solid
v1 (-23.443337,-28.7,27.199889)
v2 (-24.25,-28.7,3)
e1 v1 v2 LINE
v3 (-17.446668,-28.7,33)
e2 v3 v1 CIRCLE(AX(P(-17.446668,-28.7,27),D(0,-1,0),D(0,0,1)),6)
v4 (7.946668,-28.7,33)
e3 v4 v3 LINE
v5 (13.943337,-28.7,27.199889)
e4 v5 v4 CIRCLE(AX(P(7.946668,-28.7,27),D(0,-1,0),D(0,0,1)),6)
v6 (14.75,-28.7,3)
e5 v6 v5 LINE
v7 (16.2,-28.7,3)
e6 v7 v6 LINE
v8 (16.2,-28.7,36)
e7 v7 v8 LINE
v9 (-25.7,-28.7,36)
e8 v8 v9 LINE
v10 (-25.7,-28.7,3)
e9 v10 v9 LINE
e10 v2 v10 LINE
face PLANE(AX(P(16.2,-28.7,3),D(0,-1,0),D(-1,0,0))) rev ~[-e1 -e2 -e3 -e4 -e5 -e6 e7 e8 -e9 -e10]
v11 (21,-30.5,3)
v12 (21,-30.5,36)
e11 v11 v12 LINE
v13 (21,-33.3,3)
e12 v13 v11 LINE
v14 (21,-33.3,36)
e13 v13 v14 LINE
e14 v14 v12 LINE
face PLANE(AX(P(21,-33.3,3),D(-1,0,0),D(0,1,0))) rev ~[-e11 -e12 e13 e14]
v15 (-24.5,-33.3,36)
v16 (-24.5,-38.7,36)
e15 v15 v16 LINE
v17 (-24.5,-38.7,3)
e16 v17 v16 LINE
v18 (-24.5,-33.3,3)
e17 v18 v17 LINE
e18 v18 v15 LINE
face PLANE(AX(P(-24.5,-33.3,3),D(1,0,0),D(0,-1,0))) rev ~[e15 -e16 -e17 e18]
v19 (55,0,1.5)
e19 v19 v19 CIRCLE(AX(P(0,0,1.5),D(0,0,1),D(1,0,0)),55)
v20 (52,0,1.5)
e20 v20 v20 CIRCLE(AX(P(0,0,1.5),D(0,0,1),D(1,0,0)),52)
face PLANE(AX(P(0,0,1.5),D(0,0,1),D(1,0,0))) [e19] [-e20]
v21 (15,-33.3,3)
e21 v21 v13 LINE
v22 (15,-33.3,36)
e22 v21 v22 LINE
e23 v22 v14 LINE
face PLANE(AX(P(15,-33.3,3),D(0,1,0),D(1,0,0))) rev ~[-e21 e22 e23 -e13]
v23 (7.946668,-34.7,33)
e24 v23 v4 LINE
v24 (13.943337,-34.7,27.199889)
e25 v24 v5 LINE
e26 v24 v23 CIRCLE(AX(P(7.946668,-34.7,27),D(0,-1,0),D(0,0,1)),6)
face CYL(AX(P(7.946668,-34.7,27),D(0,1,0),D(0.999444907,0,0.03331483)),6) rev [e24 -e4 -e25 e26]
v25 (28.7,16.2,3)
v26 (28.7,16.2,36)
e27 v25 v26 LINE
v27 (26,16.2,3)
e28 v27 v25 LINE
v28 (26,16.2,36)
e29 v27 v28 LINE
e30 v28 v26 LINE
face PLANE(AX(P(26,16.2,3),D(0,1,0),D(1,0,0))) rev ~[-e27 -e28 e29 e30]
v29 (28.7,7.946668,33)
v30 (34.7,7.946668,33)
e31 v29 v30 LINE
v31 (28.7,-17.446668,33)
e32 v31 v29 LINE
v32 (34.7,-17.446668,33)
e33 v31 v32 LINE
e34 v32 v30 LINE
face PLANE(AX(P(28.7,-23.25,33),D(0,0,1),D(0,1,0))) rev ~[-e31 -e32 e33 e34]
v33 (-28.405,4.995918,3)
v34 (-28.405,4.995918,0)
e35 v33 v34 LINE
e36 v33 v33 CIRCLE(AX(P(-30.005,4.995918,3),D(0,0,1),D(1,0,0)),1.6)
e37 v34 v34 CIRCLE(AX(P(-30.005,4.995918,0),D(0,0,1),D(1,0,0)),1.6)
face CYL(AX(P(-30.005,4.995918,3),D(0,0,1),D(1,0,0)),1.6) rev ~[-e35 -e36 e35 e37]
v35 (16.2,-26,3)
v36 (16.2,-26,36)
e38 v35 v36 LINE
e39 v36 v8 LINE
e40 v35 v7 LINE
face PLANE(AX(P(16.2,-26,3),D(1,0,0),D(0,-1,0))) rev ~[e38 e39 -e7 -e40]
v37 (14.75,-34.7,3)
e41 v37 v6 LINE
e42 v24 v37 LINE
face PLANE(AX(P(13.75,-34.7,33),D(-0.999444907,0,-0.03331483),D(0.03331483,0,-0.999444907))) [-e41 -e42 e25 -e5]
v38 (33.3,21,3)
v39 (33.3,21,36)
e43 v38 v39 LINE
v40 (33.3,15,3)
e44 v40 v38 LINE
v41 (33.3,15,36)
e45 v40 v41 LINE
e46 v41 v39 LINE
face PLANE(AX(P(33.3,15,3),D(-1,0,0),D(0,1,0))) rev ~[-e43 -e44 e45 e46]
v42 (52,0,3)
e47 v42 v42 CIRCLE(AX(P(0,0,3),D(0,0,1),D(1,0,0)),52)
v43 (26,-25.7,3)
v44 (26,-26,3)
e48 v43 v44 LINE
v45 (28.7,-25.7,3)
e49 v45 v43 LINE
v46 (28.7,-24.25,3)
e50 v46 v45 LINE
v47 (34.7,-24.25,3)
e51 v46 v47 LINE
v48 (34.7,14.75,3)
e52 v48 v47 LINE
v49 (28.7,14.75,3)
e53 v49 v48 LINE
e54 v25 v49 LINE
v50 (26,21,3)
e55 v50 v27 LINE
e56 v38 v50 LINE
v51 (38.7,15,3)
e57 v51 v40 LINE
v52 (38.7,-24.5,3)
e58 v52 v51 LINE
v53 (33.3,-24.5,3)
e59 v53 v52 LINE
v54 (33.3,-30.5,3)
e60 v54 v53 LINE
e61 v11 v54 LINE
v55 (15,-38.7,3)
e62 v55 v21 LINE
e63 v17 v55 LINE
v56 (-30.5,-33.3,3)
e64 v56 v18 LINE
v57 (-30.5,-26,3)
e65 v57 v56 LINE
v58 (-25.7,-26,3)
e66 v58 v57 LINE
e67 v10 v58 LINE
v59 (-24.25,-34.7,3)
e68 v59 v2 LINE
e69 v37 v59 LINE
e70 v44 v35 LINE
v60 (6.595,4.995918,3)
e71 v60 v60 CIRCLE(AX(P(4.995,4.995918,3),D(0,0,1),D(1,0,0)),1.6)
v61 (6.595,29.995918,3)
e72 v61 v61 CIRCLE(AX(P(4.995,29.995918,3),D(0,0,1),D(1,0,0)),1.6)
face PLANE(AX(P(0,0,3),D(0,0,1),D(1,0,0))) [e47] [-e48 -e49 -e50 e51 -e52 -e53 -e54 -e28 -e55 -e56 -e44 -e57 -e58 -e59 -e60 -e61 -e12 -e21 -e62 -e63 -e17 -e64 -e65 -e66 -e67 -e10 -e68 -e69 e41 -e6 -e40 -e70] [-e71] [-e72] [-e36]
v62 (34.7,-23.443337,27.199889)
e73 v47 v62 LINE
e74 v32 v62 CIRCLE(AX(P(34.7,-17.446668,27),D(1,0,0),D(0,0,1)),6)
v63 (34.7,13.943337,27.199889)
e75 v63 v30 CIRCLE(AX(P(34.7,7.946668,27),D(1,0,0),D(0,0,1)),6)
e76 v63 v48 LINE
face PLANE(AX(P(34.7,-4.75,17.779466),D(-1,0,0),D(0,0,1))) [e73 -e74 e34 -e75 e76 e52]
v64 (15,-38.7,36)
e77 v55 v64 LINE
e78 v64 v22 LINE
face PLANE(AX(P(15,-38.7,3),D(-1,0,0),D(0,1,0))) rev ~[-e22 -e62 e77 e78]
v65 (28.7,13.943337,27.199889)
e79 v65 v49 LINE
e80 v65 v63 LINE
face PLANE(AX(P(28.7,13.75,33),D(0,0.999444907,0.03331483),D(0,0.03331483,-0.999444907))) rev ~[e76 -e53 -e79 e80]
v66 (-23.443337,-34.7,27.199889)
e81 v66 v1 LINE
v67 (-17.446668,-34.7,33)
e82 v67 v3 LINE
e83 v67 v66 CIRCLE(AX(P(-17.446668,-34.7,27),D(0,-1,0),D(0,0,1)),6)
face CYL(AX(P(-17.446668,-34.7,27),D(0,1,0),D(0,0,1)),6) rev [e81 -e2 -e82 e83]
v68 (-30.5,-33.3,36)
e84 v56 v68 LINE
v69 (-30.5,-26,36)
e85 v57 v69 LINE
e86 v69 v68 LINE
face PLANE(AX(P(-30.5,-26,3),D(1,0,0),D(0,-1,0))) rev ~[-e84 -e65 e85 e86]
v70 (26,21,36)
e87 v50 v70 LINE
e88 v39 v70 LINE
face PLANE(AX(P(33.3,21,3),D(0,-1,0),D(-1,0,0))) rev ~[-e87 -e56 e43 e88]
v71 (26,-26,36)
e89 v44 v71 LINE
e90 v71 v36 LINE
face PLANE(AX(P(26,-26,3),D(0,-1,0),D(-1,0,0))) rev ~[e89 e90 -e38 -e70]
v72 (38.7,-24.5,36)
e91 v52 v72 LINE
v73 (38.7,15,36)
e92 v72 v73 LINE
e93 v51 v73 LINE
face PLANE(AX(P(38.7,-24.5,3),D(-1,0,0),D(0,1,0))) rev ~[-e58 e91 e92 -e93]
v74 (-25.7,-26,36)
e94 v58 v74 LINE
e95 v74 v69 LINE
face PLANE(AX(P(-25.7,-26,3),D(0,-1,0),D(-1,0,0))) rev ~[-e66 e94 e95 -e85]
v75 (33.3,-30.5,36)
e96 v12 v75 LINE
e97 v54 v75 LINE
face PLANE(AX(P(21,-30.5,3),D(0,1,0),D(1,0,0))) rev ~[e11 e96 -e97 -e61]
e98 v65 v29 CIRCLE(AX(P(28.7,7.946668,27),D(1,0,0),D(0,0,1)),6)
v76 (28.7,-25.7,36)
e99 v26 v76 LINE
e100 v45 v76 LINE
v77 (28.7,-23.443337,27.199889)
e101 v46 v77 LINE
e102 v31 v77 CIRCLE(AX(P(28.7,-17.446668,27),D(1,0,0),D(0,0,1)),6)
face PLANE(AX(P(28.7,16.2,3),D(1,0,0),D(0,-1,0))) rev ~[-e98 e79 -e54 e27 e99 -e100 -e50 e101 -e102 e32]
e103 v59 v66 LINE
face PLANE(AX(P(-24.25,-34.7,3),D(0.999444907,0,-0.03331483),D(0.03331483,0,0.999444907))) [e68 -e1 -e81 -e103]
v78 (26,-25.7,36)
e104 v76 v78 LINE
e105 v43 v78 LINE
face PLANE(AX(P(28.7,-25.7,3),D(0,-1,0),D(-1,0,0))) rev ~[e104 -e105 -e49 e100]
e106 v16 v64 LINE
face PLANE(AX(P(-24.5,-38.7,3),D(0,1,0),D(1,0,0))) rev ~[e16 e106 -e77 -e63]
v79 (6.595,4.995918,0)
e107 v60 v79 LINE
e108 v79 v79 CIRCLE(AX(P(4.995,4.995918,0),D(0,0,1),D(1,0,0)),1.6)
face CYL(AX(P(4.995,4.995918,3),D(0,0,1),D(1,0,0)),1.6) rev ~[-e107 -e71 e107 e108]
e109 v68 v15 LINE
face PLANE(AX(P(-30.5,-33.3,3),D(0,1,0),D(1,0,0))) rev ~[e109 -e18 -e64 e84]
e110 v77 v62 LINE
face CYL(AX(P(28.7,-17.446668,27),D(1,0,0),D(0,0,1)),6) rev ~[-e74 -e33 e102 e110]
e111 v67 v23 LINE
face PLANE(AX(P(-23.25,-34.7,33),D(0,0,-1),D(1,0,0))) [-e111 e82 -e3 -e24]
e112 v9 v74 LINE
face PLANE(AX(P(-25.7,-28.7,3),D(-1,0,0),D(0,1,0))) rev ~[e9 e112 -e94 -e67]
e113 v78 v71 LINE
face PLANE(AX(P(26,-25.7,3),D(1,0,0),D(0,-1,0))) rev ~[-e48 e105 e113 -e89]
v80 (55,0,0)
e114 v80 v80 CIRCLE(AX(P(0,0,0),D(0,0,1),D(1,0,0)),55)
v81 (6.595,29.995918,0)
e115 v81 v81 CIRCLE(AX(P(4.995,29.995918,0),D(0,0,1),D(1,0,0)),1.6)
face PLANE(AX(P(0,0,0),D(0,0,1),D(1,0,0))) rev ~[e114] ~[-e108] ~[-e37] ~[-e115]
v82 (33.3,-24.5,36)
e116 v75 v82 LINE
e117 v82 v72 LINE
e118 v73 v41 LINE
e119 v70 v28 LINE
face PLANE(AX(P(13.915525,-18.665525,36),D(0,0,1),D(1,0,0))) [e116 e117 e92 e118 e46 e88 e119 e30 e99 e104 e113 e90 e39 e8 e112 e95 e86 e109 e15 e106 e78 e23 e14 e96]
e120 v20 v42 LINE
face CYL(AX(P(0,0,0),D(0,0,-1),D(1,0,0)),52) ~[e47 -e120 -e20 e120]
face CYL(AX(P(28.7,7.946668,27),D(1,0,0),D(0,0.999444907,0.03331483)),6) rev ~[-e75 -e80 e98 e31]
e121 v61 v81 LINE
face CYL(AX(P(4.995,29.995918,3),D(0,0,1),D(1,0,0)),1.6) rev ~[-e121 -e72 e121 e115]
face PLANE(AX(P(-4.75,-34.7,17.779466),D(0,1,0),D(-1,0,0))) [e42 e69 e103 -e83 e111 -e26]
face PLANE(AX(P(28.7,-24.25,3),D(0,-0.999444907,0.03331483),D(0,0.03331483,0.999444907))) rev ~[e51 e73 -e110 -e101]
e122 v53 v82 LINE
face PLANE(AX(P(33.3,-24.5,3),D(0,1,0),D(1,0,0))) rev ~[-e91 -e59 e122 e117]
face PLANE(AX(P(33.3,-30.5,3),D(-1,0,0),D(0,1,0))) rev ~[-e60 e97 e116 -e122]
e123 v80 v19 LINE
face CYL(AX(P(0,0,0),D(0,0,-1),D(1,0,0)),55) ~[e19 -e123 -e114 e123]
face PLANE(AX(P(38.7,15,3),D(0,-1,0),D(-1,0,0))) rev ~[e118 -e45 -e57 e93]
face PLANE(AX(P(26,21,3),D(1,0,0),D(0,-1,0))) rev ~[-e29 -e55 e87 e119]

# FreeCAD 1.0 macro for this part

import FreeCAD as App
import Part
import Sketcher

V = App.Vector
Q = App.Units.Quantity


def edges_at(feature, points):
    """Names of the edges that pass closest to the given points."""
    edges = feature.Shape.Edges
    near = lambda p: min(range(len(edges)), key=lambda i: edges[i].distToShape(Part.Vertex(*p))[0])
    return sorted({f"Edge{near(p) + 1}" for p in points})


def add_polygon(sketch, points):
    """Adds a closed chain of lines whose ends are joined by coincident constraints."""
    first, n = sketch.GeometryCount, len(points)
    for a, b in zip(points, points[1:] + points[:1]):
        sketch.addGeometry(Part.LineSegment(App.Vector(*a, 0), App.Vector(*b, 0)), False)
    for i in range(n):
        sketch.addConstraint(Sketcher.Constraint("Coincident", first + i, 2, first + (i + 1) % n, 1))

doc = App.newDocument("Part")
body = doc.addObject("PartDesign::Body", "Body")

sketch1 = doc.addObject("Sketcher::SketchObject", "Sketch")
body.addObject(sketch1)
sketch1.AttachmentSupport = (doc.XY_Plane, [""])
sketch1.MapMode = "FlatFace"
sketch1.addGeometry(Part.Circle(V(0, 0, 0), V(0, 0, 1), 52), False)
sketch1.addConstraint([
    Sketcher.Constraint("Coincident", 0, 3, -1, 1),
    Sketcher.Constraint("Diameter", 0, Q("104 mm")),
])
pad1 = doc.addObject("PartDesign::Pad", "Pad")
body.addObject(pad1)
pad1.Profile = sketch1
pad1.Length = 3

sketch2 = doc.addObject("Sketcher::SketchObject", "Sketch001")
body.addObject(sketch2)
sketch2.AttachmentSupport = (doc.XY_Plane, [""])
sketch2.MapMode = "FlatFace"
sketch2.addGeometry([
    Part.Circle(V(0, 0, 0), V(0, 0, 1), 55),
    Part.Circle(V(0, 0, 0), V(0, 0, 1), 52),
], False)
sketch2.addConstraint([
    Sketcher.Constraint("Coincident", 0, 3, -1, 1),
    Sketcher.Constraint("Coincident", 1, 3, -1, 1),
    Sketcher.Constraint("Diameter", 0, Q("110 mm")),
    Sketcher.Constraint("Diameter", 1, Q("104 mm")),
])
pad2 = doc.addObject("PartDesign::Pad", "Pad001")
body.addObject(pad2)
pad2.Profile = sketch2
pad2.Length = 1.5

sketch3 = doc.addObject("Sketcher::SketchObject", "Sketch002")
body.addObject(sketch3)
sketch3.AttachmentSupport = (doc.XY_Plane, [""])
sketch3.MapMode = "FlatFace"
sketch3.AttachmentOffset = App.Placement(V(0, 0, 3), App.Rotation())
sketch3.addGeometry(Part.Circle(V(5, 5, 0), V(0, 0, 1), 1.6), False)
sketch3.addConstraint([
    Sketcher.Constraint("Diameter", 0, Q("3.2 mm")),
    Sketcher.Constraint("DistanceX", -1, 1, 0, 3, Q("4.995 mm")),
    Sketcher.Constraint("DistanceY", -1, 1, 0, 3, Q("4.995918 mm")),
])
pocket1 = doc.addObject("PartDesign::Pocket", "Pocket")
body.addObject(pocket1)
pocket1.Profile = sketch3
pocket1.Type = "UpToFirst"

sketch4 = doc.addObject("Sketcher::SketchObject", "Sketch003")
body.addObject(sketch4)
sketch4.AttachmentSupport = (doc.XY_Plane, [""])
sketch4.MapMode = "FlatFace"
sketch4.AttachmentOffset = App.Placement(V(0, 0, 3), App.Rotation())
sketch4.addGeometry(Part.Circle(V(5, 30, 0), V(0, 0, 1), 1.6), False)
sketch4.addConstraint([
    Sketcher.Constraint("Diameter", 0, Q("3.2 mm")),
    Sketcher.Constraint("DistanceX", -1, 1, 0, 3, Q("4.995 mm")),
    Sketcher.Constraint("DistanceY", -1, 1, 0, 3, Q("29.995918 mm")),
])
pocket2 = doc.addObject("PartDesign::Pocket", "Pocket001")
body.addObject(pocket2)
pocket2.Profile = sketch4
pocket2.Type = "UpToFirst"

sketch5 = doc.addObject("Sketcher::SketchObject", "Sketch004")
body.addObject(sketch5)
sketch5.AttachmentSupport = (doc.XY_Plane, [""])
sketch5.MapMode = "FlatFace"
sketch5.AttachmentOffset = App.Placement(V(0, 0, 3), App.Rotation())
sketch5.addGeometry(Part.Circle(V(-30, 5, 0), V(0, 0, 1), 1.6), False)
sketch5.addConstraint([
    Sketcher.Constraint("Diameter", 0, Q("3.2 mm")),
    Sketcher.Constraint("DistanceX", 0, 3, -1, 1, Q("30.005 mm")),
    Sketcher.Constraint("DistanceY", -1, 1, 0, 3, Q("4.995918 mm")),
])
pocket3 = doc.addObject("PartDesign::Pocket", "Pocket002")
body.addObject(pocket3)
pocket3.Profile = sketch5
pocket3.Type = "UpToFirst"

sketch6 = doc.addObject("Sketcher::SketchObject", "Sketch005")
body.addObject(sketch6)
sketch6.AttachmentSupport = (doc.XY_Plane, [""])
sketch6.MapMode = "FlatFace"
sketch6.AttachmentOffset = App.Placement(V(0, 0, 3), App.Rotation())
add_polygon(sketch6, [(26, 21), (26, 16.2), (28.7, 16.2), (28.7, -25.7), (26, -25.7), (26, -26), (16.2, -26), (16.2, -28.7), (-25.7, -28.7), (-25.7, -26), (-30.5, -26), (-30.5, -33.3), (-24.5, -33.3), (-24.5, -38.7), (15, -38.7), (15, -33.3), (21, -33.3), (21, -30.5), (33.3, -30.5), (33.3, -24.5), (38.7, -24.5), (38.7, 15), (33.3, 15), (33.3, 21)])
sketch6.addConstraint([
    Sketcher.Constraint("Vertical", 0),
    Sketcher.Constraint("Horizontal", 1),
    Sketcher.Constraint("Vertical", 2),
    Sketcher.Constraint("Horizontal", 3),
    Sketcher.Constraint("Vertical", 4),
    Sketcher.Constraint("Horizontal", 5),
    Sketcher.Constraint("Vertical", 6),
    Sketcher.Constraint("Horizontal", 7),
    Sketcher.Constraint("Vertical", 8),
    Sketcher.Constraint("Horizontal", 9),
    Sketcher.Constraint("Vertical", 10),
    Sketcher.Constraint("Horizontal", 11),
    Sketcher.Constraint("Vertical", 12),
    Sketcher.Constraint("Horizontal", 13),
    Sketcher.Constraint("Vertical", 14),
    Sketcher.Constraint("Horizontal", 15),
    Sketcher.Constraint("Vertical", 16),
    Sketcher.Constraint("Horizontal", 17),
    Sketcher.Constraint("Vertical", 18),
    Sketcher.Constraint("Horizontal", 19),
    Sketcher.Constraint("Vertical", 20),
    Sketcher.Constraint("Horizontal", 21),
    Sketcher.Constraint("Vertical", 22),
    Sketcher.Constraint("Horizontal", 23),
    Sketcher.Constraint("Horizontal", 5, 2, 8, 2),
    Sketcher.Constraint("Horizontal", 11, 2, 14, 2),
    Sketcher.Constraint("Vertical", 0, 2, 3, 2),
    Sketcher.Constraint("Vertical", 18, 2, 21, 2),
    Sketcher.Constraint("Equal", 11, 15),
    Sketcher.Constraint("Equal", 9, 0),
    Sketcher.Constraint("Equal", 7, 2),
    Sketcher.Constraint("Equal", 3, 6),
    Sketcher.Constraint("Equal", 23, 10),
    Sketcher.Constraint("Equal", 21, 12),
    Sketcher.Constraint("Equal", 15, 18),
    Sketcher.Constraint("Equal", 13, 20),
    Sketcher.Constraint("Equal", 18, 22),
    Sketcher.Constraint("DistanceX", 11, 1, 11, 2, Q("6 mm")),
    Sketcher.Constraint("DistanceX", 1, 1, 1, 2, Q("2.7 mm")),
    Sketcher.Constraint("DistanceX", 5, 2, 5, 1, Q("9.8 mm")),
    Sketcher.Constraint("DistanceX", 7, 2, 7, 1, Q("41.9 mm")),
    Sketcher.Constraint("DistanceX", 9, 2, 9, 1, Q("4.8 mm")),
    Sketcher.Constraint("DistanceX", 13, 1, 13, 2, Q("39.5 mm")),
    Sketcher.Constraint("DistanceX", 17, 1, 17, 2, Q("12.3 mm")),
    Sketcher.Constraint("DistanceX", 19, 1, 19, 2, Q("5.4 mm")),
    Sketcher.Constraint("DistanceY", 4, 2, 4, 1, Q("0.3 mm")),
    Sketcher.Constraint("DistanceX", -1, 1, 0, 2, Q("26 mm")),
    Sketcher.Constraint("DistanceY", 4, 2, -1, 1, Q("26 mm")),
])
pad3 = doc.addObject("PartDesign::Pad", "Pad002")
body.addObject(pad3)
pad3.Profile = sketch6
pad3.Length = 33

sketch7 = doc.addObject("Sketcher::SketchObject", "Sketch006")
body.addObject(sketch7)
sketch7.AttachmentSupport = (doc.XZ_Plane, [""])
sketch7.MapMode = "FlatFace"
sketch7.AttachmentOffset = App.Placement(V(0, 0, 34.7), App.Rotation())
add_polygon(sketch7, [(-23, 33), (-24, 3), (15, 3), (14, 33)])
sketch7.addConstraint([
    Sketcher.Constraint("Horizontal", 1),
    Sketcher.Constraint("Horizontal", 3),
    Sketcher.Constraint("Equal", 0, 2),
    Sketcher.Constraint("DistanceX", 1, 1, 1, 2, Q("39 mm")),
    Sketcher.Constraint("DistanceX", 3, 2, 3, 1, Q("37 mm")),
    Sketcher.Constraint("DistanceY", -1, 1, 0, 2, Q("3 mm")),
    Sketcher.Constraint("DistanceY", -1, 1, 2, 2, Q("33 mm")),
    Sketcher.Constraint("DistanceX", 0, 2, -1, 1, Q("24.25 mm")),
])
pocket4 = doc.addObject("PartDesign::Pocket", "Pocket003")
body.addObject(pocket4)
pocket4.Profile = sketch7
pocket4.Type = "UpToFirst"
doc.recompute()

fillet = doc.addObject("PartDesign::Fillet", "Fillet")
body.addObject(fillet)
fillet.Base = (pocket4, edges_at(pocket4, [(-23.25, -31.7, 33), (13.75, -31.7, 33)]))
fillet.Radius = 6

sketch8 = doc.addObject("Sketcher::SketchObject", "Sketch007")
body.addObject(sketch8)
sketch8.AttachmentSupport = (doc.YZ_Plane, [""])
sketch8.MapMode = "FlatFace"
sketch8.AttachmentOffset = App.Placement(V(0, 0, 28.7), App.Rotation())
add_polygon(sketch8, [(-23, 33), (14, 33), (15, 3), (-24, 3)])
sketch8.addConstraint([
    Sketcher.Constraint("Horizontal", 0),
    Sketcher.Constraint("Horizontal", 2),
    Sketcher.Constraint("Equal", 1, 3),
    Sketcher.Constraint("DistanceX", 0, 1, 0, 2, Q("37 mm")),
    Sketcher.Constraint("DistanceX", 2, 2, 2, 1, Q("39 mm")),
    Sketcher.Constraint("DistanceY", -1, 1, 0, 2, Q("33 mm")),
    Sketcher.Constraint("DistanceY", -1, 1, 1, 2, Q("3 mm")),
    Sketcher.Constraint("DistanceX", -1, 1, 0, 2, Q("13.75 mm")),
])
pocket5 = doc.addObject("PartDesign::Pocket", "Pocket004")
body.addObject(pocket5)
pocket5.Profile = sketch8
pocket5.Length = 6
pocket5.Reversed = True
doc.recompute()

fillet2 = doc.addObject("PartDesign::Fillet", "Fillet001")
body.addObject(fillet2)
fillet2.Base = (pocket5, edges_at(pocket5, [(31.7, -23.25, 33), (31.7, 13.75, 33)]))
fillet2.Radius = 6

doc.recompute()
